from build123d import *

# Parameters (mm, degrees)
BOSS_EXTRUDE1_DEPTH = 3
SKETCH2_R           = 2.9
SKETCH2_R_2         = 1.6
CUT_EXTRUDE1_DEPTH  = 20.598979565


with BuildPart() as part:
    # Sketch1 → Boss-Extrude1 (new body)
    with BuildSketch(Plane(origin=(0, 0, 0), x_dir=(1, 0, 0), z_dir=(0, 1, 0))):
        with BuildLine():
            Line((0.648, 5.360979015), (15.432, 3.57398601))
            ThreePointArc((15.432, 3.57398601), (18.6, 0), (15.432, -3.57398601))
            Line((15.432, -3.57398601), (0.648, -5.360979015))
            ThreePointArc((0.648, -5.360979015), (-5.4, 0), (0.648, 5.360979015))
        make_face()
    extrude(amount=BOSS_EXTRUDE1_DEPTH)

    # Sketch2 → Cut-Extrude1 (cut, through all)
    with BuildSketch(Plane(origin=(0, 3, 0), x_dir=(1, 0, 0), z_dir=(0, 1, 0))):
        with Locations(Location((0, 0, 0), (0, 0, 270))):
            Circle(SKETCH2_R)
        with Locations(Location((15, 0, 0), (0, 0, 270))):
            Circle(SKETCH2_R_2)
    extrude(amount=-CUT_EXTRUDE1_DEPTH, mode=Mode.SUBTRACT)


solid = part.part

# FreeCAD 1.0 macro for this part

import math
import FreeCAD as App
import Part
import Sketcher
from FreeCAD import Vector

doc = App.newDocument("Part")
body = doc.addObject("PartDesign::Body", "Body")

# Sketch on XZ plane
sketch1 = body.newObject("Sketcher::SketchObject", "Sketch")
sketch1.AttachmentSupport = (doc.getObject("XZ_Plane"), [""])
sketch1.MapMode = "FlatFace"
sketch1.addGeometry([
    Part.LineSegment(Vector(15.432, -3.573986, 0), Vector(0.648, -5.360979, 0)),
    Part.ArcOfCircle(Part.Circle(Vector(0, 0, 0), Vector(0, 0, 1), 5.4), math.radians(83.107897), math.radians(276.892103)),
    Part.LineSegment(Vector(0.648, 5.360979, 0), Vector(15.432, 3.573986, 0)),
    Part.ArcOfCircle(Part.Circle(Vector(15, 0, 0), Vector(0, 0, 1), 3.6), math.radians(-83.107897), math.radians(83.107897)),
], False)
sketch1.addConstraint([
    Sketcher.Constraint("Tangent", 0, 2, 1, 2),
    Sketcher.Constraint("Tangent", 1, 1, 2, 1),
    Sketcher.Constraint("Tangent", 2, 2, 3, 2),
    Sketcher.Constraint("Tangent", 3, 1, 0, 1),
    Sketcher.Constraint("Coincident", 1, 3, -1, 1),
    Sketcher.Constraint("PointOnObject", 3, 3, -1),
    Sketcher.Constraint("Radius", 1, 5.4),
    Sketcher.Constraint("Radius", 3, 3.6),
    Sketcher.Constraint("DistanceX", -1, 1, 3, 3, 15.0),
])
pad1 = body.newObject("PartDesign::Pad", "Pad")
pad1.Profile = sketch1
pad1.Length = 3
pad1.Reversed = True

# Sketch on XZ plane
sketch2 = body.newObject("Sketcher::SketchObject", "Sketch001")
sketch2.AttachmentSupport = (doc.getObject("XZ_Plane"), [""])
sketch2.MapMode = "FlatFace"
sketch2.AttachmentOffset = App.Placement(Vector(0, 0, -3), App.Rotation())
sketch2.addGeometry([
    Part.Circle(Vector(0, 0, 0), Vector(0, 0, 1), 2.9),
    Part.Circle(Vector(15, 0, 0), Vector(0, 0, 1), 1.6),
], False)
sketch2.addConstraint([
    Sketcher.Constraint("Coincident", 0, 3, -1, 1),
    Sketcher.Constraint("PointOnObject", 1, 3, -1),
    Sketcher.Constraint("Diameter", 0, 5.8),
    Sketcher.Constraint("Diameter", 1, 3.2),
    Sketcher.Constraint("DistanceX", -1, 1, 1, 3, 15.0),
])
pocket1 = body.newObject("PartDesign::Pocket", "Pocket")
pocket1.Profile = sketch2
pocket1.Type = "ThroughAll"
pocket1.Reversed = True

doc.recompute()
